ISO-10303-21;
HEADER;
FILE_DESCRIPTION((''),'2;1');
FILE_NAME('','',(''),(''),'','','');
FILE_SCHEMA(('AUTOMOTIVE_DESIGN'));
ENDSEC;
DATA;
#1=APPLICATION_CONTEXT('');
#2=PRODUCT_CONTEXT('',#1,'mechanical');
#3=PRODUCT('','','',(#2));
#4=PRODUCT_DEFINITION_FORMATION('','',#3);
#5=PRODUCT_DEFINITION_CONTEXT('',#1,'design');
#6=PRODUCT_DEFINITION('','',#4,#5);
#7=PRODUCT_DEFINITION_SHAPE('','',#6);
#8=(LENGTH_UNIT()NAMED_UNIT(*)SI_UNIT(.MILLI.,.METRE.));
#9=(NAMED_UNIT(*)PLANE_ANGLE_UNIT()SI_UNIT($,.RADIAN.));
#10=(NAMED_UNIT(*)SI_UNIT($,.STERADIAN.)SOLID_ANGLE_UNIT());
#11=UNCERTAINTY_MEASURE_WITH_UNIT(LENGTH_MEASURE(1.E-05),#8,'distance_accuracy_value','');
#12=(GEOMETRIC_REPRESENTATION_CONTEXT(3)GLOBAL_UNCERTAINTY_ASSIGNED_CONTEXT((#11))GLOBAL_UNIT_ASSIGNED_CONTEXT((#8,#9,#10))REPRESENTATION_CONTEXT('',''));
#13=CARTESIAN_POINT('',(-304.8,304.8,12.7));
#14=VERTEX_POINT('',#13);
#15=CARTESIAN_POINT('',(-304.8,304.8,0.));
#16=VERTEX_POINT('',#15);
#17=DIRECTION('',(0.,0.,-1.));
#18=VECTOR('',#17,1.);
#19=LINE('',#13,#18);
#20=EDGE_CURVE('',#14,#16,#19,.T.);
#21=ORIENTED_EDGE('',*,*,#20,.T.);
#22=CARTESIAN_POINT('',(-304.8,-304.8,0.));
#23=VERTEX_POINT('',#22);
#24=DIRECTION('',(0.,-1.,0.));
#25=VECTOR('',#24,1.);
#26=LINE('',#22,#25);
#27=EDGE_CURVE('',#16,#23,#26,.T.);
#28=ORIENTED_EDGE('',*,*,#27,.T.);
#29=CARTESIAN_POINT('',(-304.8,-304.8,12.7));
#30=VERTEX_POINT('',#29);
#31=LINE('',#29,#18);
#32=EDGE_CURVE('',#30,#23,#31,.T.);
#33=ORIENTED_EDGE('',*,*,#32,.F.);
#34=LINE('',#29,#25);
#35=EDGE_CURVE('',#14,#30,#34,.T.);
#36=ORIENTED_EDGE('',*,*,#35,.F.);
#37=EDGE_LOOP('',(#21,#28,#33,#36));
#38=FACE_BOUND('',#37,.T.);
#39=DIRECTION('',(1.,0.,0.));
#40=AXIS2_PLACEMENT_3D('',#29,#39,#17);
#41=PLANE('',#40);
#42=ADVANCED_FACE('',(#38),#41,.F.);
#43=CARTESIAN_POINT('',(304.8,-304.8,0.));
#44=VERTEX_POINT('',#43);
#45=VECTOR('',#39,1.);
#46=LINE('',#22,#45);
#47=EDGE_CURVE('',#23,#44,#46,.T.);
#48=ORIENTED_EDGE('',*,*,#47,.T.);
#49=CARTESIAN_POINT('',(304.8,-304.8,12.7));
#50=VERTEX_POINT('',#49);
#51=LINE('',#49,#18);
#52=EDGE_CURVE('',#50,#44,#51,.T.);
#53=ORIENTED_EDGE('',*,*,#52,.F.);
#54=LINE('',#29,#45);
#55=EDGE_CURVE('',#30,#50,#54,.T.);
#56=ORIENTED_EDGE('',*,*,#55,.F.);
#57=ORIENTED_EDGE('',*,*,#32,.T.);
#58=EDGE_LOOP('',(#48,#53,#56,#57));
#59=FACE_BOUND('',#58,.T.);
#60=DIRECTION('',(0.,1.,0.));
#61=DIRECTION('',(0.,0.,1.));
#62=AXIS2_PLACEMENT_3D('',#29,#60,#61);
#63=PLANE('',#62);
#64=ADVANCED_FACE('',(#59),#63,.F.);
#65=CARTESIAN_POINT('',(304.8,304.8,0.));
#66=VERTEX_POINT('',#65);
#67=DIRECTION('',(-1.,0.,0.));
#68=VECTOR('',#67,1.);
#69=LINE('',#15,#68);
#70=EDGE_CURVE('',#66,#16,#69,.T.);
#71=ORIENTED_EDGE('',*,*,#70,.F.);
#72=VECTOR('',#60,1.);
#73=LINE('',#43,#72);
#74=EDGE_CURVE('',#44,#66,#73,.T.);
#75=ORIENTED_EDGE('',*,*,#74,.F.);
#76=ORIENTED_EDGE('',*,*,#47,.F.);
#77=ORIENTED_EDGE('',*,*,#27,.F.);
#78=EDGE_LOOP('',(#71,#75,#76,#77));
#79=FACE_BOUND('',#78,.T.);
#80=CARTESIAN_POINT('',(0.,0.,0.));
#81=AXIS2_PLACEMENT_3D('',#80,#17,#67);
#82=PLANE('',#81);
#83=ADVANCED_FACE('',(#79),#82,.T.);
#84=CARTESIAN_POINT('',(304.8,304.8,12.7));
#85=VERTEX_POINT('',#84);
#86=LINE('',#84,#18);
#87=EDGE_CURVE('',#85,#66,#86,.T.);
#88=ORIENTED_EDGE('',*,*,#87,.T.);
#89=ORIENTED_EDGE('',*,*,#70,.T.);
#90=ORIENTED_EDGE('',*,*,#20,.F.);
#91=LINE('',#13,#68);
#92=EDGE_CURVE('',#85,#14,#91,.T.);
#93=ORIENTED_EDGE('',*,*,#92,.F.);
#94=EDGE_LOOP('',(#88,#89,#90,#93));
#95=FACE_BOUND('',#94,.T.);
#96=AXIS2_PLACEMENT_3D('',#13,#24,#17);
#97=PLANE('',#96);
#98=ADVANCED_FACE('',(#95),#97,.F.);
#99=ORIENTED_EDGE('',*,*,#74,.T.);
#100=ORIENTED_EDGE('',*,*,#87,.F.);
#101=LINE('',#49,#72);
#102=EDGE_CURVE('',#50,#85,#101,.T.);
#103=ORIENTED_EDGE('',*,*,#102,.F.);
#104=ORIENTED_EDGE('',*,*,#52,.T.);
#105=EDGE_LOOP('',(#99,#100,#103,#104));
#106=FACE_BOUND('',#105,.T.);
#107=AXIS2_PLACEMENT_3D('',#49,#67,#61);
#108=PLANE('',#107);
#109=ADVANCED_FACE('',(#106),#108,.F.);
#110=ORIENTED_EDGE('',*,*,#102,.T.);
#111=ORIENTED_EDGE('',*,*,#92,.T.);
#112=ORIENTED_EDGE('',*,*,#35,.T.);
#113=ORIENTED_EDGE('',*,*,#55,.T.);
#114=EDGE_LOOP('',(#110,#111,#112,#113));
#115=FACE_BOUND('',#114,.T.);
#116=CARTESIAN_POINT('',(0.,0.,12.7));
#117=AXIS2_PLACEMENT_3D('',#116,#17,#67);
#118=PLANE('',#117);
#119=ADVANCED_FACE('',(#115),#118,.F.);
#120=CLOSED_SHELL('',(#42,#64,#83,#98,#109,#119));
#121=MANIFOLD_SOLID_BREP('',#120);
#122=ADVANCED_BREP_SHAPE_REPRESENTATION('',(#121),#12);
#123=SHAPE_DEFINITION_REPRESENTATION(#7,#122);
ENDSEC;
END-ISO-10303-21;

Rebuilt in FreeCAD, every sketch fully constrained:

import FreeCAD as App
import Part
import Sketcher

V = App.Vector
Q = App.Units.Quantity


def add_polygon(sketch, points):
    """Adds a closed chain of lines whose ends are joined by coincident constraints."""
    first, n = sketch.GeometryCount, len(points)
    for a, b in zip(points, points[1:] + points[:1]):
        sketch.addGeometry(Part.LineSegment(App.Vector(*a, 0), App.Vector(*b, 0)), False)
    for i in range(n):
        sketch.addConstraint(Sketcher.Constraint("Coincident", first + i, 2, first + (i + 1) % n, 1))

doc = App.newDocument("Part")
body = doc.addObject("PartDesign::Body", "Body")

# Sketch on XY plane
sketch1 = doc.addObject("Sketcher::SketchObject", "Sketch")
body.addObject(sketch1)
sketch1.AttachmentSupport = (doc.XY_Plane, [""])
sketch1.MapMode = "FlatFace"
add_polygon(sketch1, [(-305, 305), (-305, -305), (305, -305), (305, 305)])  # lines 0-3
sketch1.addConstraint([
    Sketcher.Constraint("Vertical", 0),
    Sketcher.Constraint("Horizontal", 1),
    Sketcher.Constraint("Vertical", 2),
    Sketcher.Constraint("Horizontal", 3),
    Sketcher.Constraint("Symmetric", 0, 2, 2, 2, -1, 1),
    Sketcher.Constraint("Equal", 3, 0),
    Sketcher.Constraint("DistanceX", 1, 1, 1, 2, Q("24 in")),
])
pad1 = doc.addObject("PartDesign::Pad", "Pad")
body.addObject(pad1)
pad1.Profile = sketch1
pad1.Length = Q("0.5 in")

doc.recompute()
